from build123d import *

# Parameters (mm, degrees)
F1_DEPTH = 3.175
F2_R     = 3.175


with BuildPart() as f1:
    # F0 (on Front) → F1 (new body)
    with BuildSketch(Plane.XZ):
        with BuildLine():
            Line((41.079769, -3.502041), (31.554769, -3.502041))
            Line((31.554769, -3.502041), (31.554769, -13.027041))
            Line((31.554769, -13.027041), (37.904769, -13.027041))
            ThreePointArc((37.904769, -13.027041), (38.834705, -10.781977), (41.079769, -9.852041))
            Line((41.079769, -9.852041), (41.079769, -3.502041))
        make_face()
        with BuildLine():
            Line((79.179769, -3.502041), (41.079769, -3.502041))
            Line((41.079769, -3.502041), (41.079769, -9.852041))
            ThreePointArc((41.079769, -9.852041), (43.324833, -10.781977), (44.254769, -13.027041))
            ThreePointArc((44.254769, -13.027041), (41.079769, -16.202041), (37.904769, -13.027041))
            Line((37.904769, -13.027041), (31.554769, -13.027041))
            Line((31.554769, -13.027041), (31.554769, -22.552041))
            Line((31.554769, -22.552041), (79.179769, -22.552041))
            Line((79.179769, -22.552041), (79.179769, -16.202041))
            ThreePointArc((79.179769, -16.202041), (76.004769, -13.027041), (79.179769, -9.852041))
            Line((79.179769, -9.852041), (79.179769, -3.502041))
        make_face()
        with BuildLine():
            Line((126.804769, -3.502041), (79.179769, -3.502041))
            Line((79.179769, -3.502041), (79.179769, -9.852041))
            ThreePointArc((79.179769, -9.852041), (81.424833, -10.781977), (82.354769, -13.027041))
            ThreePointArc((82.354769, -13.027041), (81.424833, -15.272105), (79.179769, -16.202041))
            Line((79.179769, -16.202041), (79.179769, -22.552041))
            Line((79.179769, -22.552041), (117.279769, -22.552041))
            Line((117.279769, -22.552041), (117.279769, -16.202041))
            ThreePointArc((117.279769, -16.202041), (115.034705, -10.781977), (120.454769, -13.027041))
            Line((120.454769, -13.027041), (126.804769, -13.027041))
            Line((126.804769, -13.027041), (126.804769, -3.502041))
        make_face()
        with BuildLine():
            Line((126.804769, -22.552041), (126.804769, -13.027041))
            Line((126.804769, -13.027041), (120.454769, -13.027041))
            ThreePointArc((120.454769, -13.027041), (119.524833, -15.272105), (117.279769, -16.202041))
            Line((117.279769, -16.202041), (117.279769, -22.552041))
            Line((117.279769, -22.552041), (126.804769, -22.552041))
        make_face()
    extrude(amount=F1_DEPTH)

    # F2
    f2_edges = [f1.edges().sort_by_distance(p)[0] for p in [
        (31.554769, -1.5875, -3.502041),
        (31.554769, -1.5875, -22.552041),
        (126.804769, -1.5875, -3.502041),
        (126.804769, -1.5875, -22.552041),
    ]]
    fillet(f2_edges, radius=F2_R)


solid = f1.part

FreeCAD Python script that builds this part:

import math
import FreeCAD as App
import Part
import Sketcher
from FreeCAD import Vector
Q = App.Units.Quantity


def edges_at(feature, points):
    """Names of the edges that pass closest to the given points."""
    edges = feature.Shape.Edges
    near = lambda p: min(range(len(edges)), key=lambda i: edges[i].distToShape(Part.Vertex(*p))[0])
    return sorted({f"Edge{near(p) + 1}" for p in points})

doc = App.newDocument("Part")
body = doc.addObject("PartDesign::Body", "Body")

sketch1 = body.newObject("Sketcher::SketchObject", "Sketch")
sketch1.AttachmentSupport = (doc.getObject("XZ_Plane"), [""])
sketch1.MapMode = "FlatFace"
sketch1.addGeometry(Part.LineSegment(Vector(31.554769, -3.502041, 0), Vector(31.554769, -22.552041, 0)), False)
sketch1.addGeometry(Part.LineSegment(Vector(31.554769, -22.552041, 0), Vector(126.804769, -22.552041, 0)), False)
sketch1.addGeometry(Part.LineSegment(Vector(126.804769, -22.552041, 0), Vector(126.804769, -3.502041, 0)), False)
sketch1.addGeometry(Part.LineSegment(Vector(126.804769, -3.502041, 0), Vector(31.554769, -3.502041, 0)), False)
sketch1.addGeometry(Part.ArcOfCircle(Part.Circle(Vector(117.279769, -13.027041, 0), Vector(0, 0, 1), 3.175), math.radians(0), math.radians(270)), False)
sketch1.addGeometry(Part.ArcOfCircle(Part.Circle(Vector(117.279769, -13.027041, 0), Vector(0, 0, 1), 3.175), math.radians(-89.999998), math.radians(-0.000002)), False)
sketch1.addGeometry(Part.ArcOfCircle(Part.Circle(Vector(79.179769, -13.027041, 0), Vector(0, 0, 1), 3.175), math.radians(90), math.radians(270)), False)
sketch1.addGeometry(Part.ArcOfCircle(Part.Circle(Vector(79.179769, -13.027041, 0), Vector(0, 0, 1), 3.175), math.radians(0.000002), math.radians(89.999998)), False)
sketch1.addGeometry(Part.ArcOfCircle(Part.Circle(Vector(79.179769, -13.027041, 0), Vector(0, 0, 1), 3.175), math.radians(-89.999998), math.radians(-0.000002)), False)
sketch1.addGeometry(Part.ArcOfCircle(Part.Circle(Vector(41.079769, -13.027041, 0), Vector(0, 0, 1), 3.175), math.radians(90.000002), math.radians(179.999998)), False)
sketch1.addGeometry(Part.ArcOfCircle(Part.Circle(Vector(41.079769, -13.027041, 0), Vector(0, 0, 1), 3.175), math.radians(0.000002), math.radians(89.999998)), False)
sketch1.addGeometry(Part.ArcOfCircle(Part.Circle(Vector(41.079769, -13.027041, 0), Vector(0, 0, 1), 3.175), math.radians(180), math.radians(360)), False)
sketch1.addConstraint(Sketcher.Constraint("Coincident", 0, 2, 1, 1))
sketch1.addConstraint(Sketcher.Constraint("Coincident", 1, 2, 2, 1))
sketch1.addConstraint(Sketcher.Constraint("Coincident", 2, 2, 3, 1))
sketch1.addConstraint(Sketcher.Constraint("Coincident", 3, 2, 0, 1))
sketch1.addConstraint(Sketcher.Constraint("Tangent", 4, 1, 5, 2))
sketch1.addConstraint(Sketcher.Constraint("Coincident", 5, 1, 4, 2))
sketch1.addConstraint(Sketcher.Constraint("Tangent", 6, 1, 7, 2))
sketch1.addConstraint(Sketcher.Constraint("Tangent", 7, 1, 8, 2))
sketch1.addConstraint(Sketcher.Constraint("Tangent", 8, 1, 6, 2))
sketch1.addConstraint(Sketcher.Constraint("Tangent", 9, 1, 10, 2))
sketch1.addConstraint(Sketcher.Constraint("Tangent", 10, 1, 11, 2))
sketch1.addConstraint(Sketcher.Constraint("Tangent", 11, 1, 9, 2))
sketch1.addConstraint(Sketcher.Constraint("Vertical", 0))
sketch1.addConstraint(Sketcher.Constraint("Horizontal", 1))
sketch1.addConstraint(Sketcher.Constraint("Vertical", 2))
sketch1.addConstraint(Sketcher.Constraint("Horizontal", 3))
sketch1.addConstraint(Sketcher.Constraint("Equal", 5, 6))
sketch1.addConstraint(Sketcher.Constraint("Equal", 8, 9))
sketch1.addConstraint(Sketcher.Constraint("Horizontal", 5, 3, 6, 3))
sketch1.addConstraint(Sketcher.Constraint("Horizontal", 8, 3, 9, 3))
sketch1.addConstraint(Sketcher.Constraint("Horizontal", 11, 3, 4, 1))
sketch1.addConstraint(Sketcher.Constraint("Horizontal", 4, 1, 7, 1))
sketch1.addConstraint(Sketcher.Constraint("Horizontal", 7, 1, 10, 1))
sketch1.addConstraint(Sketcher.Constraint("Horizontal", 10, 1, 11, 1))
sketch1.addConstraint(Sketcher.Constraint("Vertical", 4, 3, 5, 1))
sketch1.addConstraint(Sketcher.Constraint("Vertical", 8, 3, 6, 1))
sketch1.addConstraint(Sketcher.Constraint("Vertical", 6, 1, 8, 1))
sketch1.addConstraint(Sketcher.Constraint("Vertical", 11, 3, 9, 1))
sketch1.addConstraint(Sketcher.Constraint("Radius", 4, Q("0.125 in")))
sketch1.addConstraint(Sketcher.Constraint("DistanceX", 9, 3, 5, 3, Q("3 in")))
sketch1.addConstraint(Sketcher.Constraint("DistanceX", 1, 1, 1, 2, Q("3.75 in")))
sketch1.addConstraint(Sketcher.Constraint("DistanceY", 0, 2, 0, 1, Q("0.75 in")))
sketch1.addConstraint(Sketcher.Constraint("DistanceX", 6, 3, 5, 3, Q("1.5 in")))
sketch1.addConstraint(Sketcher.Constraint("DistanceY", 5, 1, 2, 2, Q("0.5 in")))
sketch1.addConstraint(Sketcher.Constraint("DistanceX", 0, 2, 10, 1, Q("0.5 in")))
sketch1.addConstraint(Sketcher.Constraint("DistanceX", -1, 1, 4, 3, 117.279769))
sketch1.addConstraint(Sketcher.Constraint("DistanceY", 4, 3, -1, 1, 13.027041))
pad1 = body.newObject("PartDesign::Pad", "Pad")
pad1.Profile = sketch1
pad1.Length = Q("0.125 in")
doc.recompute()

fillet = body.newObject("PartDesign::Fillet", "Fillet")
fillet.Base = (pad1, edges_at(pad1, [
    (31.555, -1.587, -3.502),
    (31.555, -1.587, -22.552),
    (126.805, -1.587, -3.502),
    (126.805, -1.587, -22.552),
]))
fillet.Radius = Q("0.125 in")

doc.recompute()
